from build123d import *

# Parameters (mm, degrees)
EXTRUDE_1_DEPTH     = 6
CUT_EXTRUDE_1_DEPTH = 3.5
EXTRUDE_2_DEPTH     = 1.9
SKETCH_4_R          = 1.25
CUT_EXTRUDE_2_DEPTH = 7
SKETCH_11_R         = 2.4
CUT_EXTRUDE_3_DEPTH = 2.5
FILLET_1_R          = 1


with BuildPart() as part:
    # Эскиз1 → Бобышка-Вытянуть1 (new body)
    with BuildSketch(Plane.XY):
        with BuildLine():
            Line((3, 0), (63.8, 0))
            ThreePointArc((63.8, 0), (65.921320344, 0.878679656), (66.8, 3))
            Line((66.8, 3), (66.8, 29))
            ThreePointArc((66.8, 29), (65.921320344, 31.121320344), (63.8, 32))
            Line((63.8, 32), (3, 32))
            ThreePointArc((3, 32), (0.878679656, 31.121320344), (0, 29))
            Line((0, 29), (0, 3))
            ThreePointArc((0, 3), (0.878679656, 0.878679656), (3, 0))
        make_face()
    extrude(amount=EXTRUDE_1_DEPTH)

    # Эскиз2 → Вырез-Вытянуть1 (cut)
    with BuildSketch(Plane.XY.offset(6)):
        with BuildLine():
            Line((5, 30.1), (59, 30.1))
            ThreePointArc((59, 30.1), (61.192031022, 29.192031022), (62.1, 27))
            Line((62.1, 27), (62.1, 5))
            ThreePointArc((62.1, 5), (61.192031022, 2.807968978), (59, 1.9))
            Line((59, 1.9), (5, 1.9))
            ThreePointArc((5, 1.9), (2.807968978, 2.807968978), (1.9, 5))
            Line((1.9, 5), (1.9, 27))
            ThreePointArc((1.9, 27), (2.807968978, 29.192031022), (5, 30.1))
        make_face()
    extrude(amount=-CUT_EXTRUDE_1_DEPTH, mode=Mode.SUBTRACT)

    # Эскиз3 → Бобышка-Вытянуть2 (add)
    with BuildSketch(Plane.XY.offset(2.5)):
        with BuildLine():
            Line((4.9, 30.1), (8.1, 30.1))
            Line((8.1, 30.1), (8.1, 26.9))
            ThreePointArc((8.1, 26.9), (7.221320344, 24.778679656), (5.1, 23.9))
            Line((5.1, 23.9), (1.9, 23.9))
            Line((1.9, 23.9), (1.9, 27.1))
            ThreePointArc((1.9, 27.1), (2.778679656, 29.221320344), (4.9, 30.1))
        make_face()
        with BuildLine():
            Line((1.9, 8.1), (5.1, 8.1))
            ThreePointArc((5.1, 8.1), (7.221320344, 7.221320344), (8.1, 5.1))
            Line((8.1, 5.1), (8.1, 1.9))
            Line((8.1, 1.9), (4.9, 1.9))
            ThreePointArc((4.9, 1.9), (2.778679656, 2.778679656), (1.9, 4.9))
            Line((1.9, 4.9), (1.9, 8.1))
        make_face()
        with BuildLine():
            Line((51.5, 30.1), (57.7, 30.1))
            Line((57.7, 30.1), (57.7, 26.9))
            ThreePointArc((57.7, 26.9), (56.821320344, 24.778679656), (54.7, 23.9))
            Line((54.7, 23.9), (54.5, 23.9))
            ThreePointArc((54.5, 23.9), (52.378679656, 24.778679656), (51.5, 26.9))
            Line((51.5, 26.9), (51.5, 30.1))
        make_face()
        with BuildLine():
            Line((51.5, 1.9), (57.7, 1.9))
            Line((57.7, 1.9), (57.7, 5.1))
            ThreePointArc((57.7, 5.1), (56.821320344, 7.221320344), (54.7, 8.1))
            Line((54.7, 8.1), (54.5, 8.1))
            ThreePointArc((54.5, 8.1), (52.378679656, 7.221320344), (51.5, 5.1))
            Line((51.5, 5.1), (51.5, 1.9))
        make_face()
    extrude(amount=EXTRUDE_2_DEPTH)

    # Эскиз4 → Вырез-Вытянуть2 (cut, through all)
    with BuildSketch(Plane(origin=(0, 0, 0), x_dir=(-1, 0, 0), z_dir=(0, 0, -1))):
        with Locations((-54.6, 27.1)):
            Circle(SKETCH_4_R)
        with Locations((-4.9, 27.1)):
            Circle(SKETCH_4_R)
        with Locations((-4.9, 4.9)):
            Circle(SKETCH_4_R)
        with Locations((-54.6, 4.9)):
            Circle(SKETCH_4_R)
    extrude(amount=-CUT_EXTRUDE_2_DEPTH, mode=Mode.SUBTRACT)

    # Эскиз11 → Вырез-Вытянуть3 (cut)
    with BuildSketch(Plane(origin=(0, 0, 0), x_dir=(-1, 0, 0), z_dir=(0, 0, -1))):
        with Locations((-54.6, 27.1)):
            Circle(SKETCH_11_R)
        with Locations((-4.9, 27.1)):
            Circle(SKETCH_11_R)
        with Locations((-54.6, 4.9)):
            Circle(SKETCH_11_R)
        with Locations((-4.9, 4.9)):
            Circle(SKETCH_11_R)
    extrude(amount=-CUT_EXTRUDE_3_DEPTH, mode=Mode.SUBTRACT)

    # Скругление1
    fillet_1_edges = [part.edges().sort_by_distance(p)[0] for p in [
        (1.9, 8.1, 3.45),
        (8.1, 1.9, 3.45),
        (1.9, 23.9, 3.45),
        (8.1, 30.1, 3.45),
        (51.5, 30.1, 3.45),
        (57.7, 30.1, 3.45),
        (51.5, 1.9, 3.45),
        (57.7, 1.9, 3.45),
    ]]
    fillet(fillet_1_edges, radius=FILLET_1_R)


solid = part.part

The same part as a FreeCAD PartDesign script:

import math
import FreeCAD as App
import Part
import Sketcher

V = App.Vector


def edges_at(feature, points):
    """Names of the edges that pass closest to the given points."""
    edges = feature.Shape.Edges
    near = lambda p: min(range(len(edges)), key=lambda i: edges[i].distToShape(Part.Vertex(*p))[0])
    return sorted({f"Edge{near(p) + 1}" for p in points})

doc = App.newDocument("Part")
params = doc.addObject("Spreadsheet::Sheet", "Params")
for row, (alias, value) in enumerate([
    ("sketch1_radius", "3 mm"),
    ("sketch1_height", "26 mm"),
    ("sketch1_width", "60.8 mm"),
    ("pad1_length", "6 mm"),
    ("sketch2_radius", "3.1 mm"),
    ("sketch2_width", "54 mm"),
    ("sketch2_height", "22 mm"),
    ("pocket1_length", "3.5 mm"),
    ("sketch3_radius", "3 mm"),
    ("sketch3_width", "3.2 mm"),
    ("sketch3_width2", "6.2 mm"),
    ("pad2_length", "1.9 mm"),
    ("sketch4_diameter", "2.5 mm"),
    ("sketch5_diameter", "4.8 mm"),
    ("pocket3_length", "2.5 mm"),
    ("fillet_radius", "1 mm"),
], start=1):
    params.set(f"A{row}", alias)
    params.set(f"B{row}", "=" + value)
    params.setAlias(f"B{row}", alias)

body = doc.addObject("PartDesign::Body", "Body")

sketch1 = body.newObject("Sketcher::SketchObject", "Sketch")
sketch1.AttachmentSupport = (doc.getObject("XY_Plane"), [""])
sketch1.MapMode = "FlatFace"
sketch1.addGeometry([
    Part.LineSegment(V(3, 0, 0), V(63.8, 0, 0)),
    Part.ArcOfCircle(Part.Circle(V(63.8, 3, 0), V(0, 0, 1), 3), math.radians(-90), math.radians(0)),
    Part.LineSegment(V(66.8, 3, 0), V(66.8, 29, 0)),
    Part.ArcOfCircle(Part.Circle(V(63.8, 29, 0), V(0, 0, 1), 3), math.radians(0), math.radians(90)),
    Part.LineSegment(V(63.8, 32, 0), V(3, 32, 0)),
    Part.ArcOfCircle(Part.Circle(V(3, 29, 0), V(0, 0, 1), 3), math.radians(90), math.radians(180)),
    Part.LineSegment(V(0, 29, 0), V(0, 3, 0)),
    Part.ArcOfCircle(Part.Circle(V(3, 3, 0), V(0, 0, 1), 3), math.radians(180), math.radians(270)),
], False)
sketch1.addConstraint([
    Sketcher.Constraint("Tangent", 0, 2, 1, 1),
    Sketcher.Constraint("Tangent", 1, 2, 2, 1),
    Sketcher.Constraint("Tangent", 2, 2, 3, 1),
    Sketcher.Constraint("Tangent", 3, 2, 4, 1),
    Sketcher.Constraint("Tangent", 4, 2, 5, 1),
    Sketcher.Constraint("Tangent", 5, 2, 6, 1),
    Sketcher.Constraint("Tangent", 6, 2, 7, 1),
    Sketcher.Constraint("Tangent", 7, 2, 0, 1),
    Sketcher.Constraint("Horizontal", 0),
    Sketcher.Constraint("Vertical", 2),
    Sketcher.Constraint("Horizontal", 4),
    Sketcher.Constraint("Vertical", 6),
    Sketcher.Constraint("Equal", 1, 3),
    Sketcher.Constraint("Equal", 3, 5),
    Sketcher.Constraint("Equal", 5, 7),
    Sketcher.Constraint("PointOnObject", 0, 2, -1),
    Sketcher.Constraint("PointOnObject", 5, 2, -2),
    Sketcher.Constraint("Radius", 1, 3.0),
    Sketcher.Constraint("DistanceY", 2, 1, 2, 2, 26.0),
    Sketcher.Constraint("DistanceX", 0, 1, 0, 2, 60.8),
])
sketch1.setExpression("Constraints[17]", "Params.sketch1_radius")
sketch1.setExpression("Constraints[18]", "Params.sketch1_height")
sketch1.setExpression("Constraints[19]", "Params.sketch1_width")
pad1 = body.newObject("PartDesign::Pad", "Pad")
pad1.Profile = sketch1
pad1.setExpression("Length", "Params.pad1_length")

sketch2 = body.newObject("Sketcher::SketchObject", "Sketch001")
sketch2.AttachmentSupport = (doc.getObject("XY_Plane"), [""])
sketch2.MapMode = "FlatFace"
sketch2.AttachmentOffset = App.Placement(V(0, 0, 6), App.Rotation())
sketch2.addGeometry([
    Part.LineSegment(V(59, 30.1, 0), V(5, 30.1, 0)),
    Part.ArcOfCircle(Part.Circle(V(5, 27, 0), V(0, 0, 1), 3.1), math.radians(90), math.radians(180)),
    Part.LineSegment(V(1.9, 27, 0), V(1.9, 5, 0)),
    Part.ArcOfCircle(Part.Circle(V(5, 5, 0), V(0, 0, 1), 3.1), math.radians(180), math.radians(270)),
    Part.LineSegment(V(5, 1.9, 0), V(59, 1.9, 0)),
    Part.ArcOfCircle(Part.Circle(V(59, 5, 0), V(0, 0, 1), 3.1), math.radians(-90), math.radians(0)),
    Part.LineSegment(V(62.1, 5, 0), V(62.1, 27, 0)),
    Part.ArcOfCircle(Part.Circle(V(59, 27, 0), V(0, 0, 1), 3.1), math.radians(0), math.radians(90)),
], False)
sketch2.addConstraint([
    Sketcher.Constraint("Tangent", 0, 2, 1, 1),
    Sketcher.Constraint("Tangent", 1, 2, 2, 1),
    Sketcher.Constraint("Tangent", 2, 2, 3, 1),
    Sketcher.Constraint("Tangent", 3, 2, 4, 1),
    Sketcher.Constraint("Tangent", 4, 2, 5, 1),
    Sketcher.Constraint("Tangent", 5, 2, 6, 1),
    Sketcher.Constraint("Tangent", 6, 2, 7, 1),
    Sketcher.Constraint("Tangent", 7, 2, 0, 1),
    Sketcher.Constraint("Horizontal", 0),
    Sketcher.Constraint("Vertical", 2),
    Sketcher.Constraint("Horizontal", 4),
    Sketcher.Constraint("Vertical", 6),
    Sketcher.Constraint("Equal", 1, 3),
    Sketcher.Constraint("Equal", 3, 5),
    Sketcher.Constraint("Equal", 5, 7),
    Sketcher.Constraint("Radius", 1, 3.1),
    Sketcher.Constraint("DistanceX", 0, 2, 0, 1, 54.0),
    Sketcher.Constraint("DistanceY", 2, 2, 2, 1, 22.0),
    Sketcher.Constraint("DistanceX", -1, 1, 1, 3, 5.0),
    Sketcher.Constraint("DistanceY", -1, 1, 1, 3, 27.0),
])
sketch2.setExpression("Constraints[15]", "Params.sketch2_radius")
sketch2.setExpression("Constraints[16]", "Params.sketch2_width")
sketch2.setExpression("Constraints[17]", "Params.sketch2_height")
pocket1 = body.newObject("PartDesign::Pocket", "Pocket")
pocket1.Profile = sketch2
pocket1.setExpression("Length", "Params.pocket1_length")

sketch3 = body.newObject("Sketcher::SketchObject", "Sketch002")
sketch3.AttachmentSupport = (doc.getObject("XY_Plane"), [""])
sketch3.MapMode = "FlatFace"
sketch3.AttachmentOffset = App.Placement(V(0, 0, 2.5), App.Rotation())
sketch3.addGeometry([
    Part.LineSegment(V(8.1, 30.1, 0), V(4.9, 30.1, 0)),
    Part.ArcOfCircle(Part.Circle(V(4.9, 27.1, 0), V(0, 0, 1), 3), math.radians(90), math.radians(180)),
    Part.LineSegment(V(1.9, 27.1, 0), V(1.9, 23.9, 0)),
    Part.LineSegment(V(1.9, 23.9, 0), V(5.1, 23.9, 0)),
    Part.ArcOfCircle(Part.Circle(V(5.1, 26.9, 0), V(0, 0, 1), 3), math.radians(-90), math.radians(0)),
    Part.LineSegment(V(8.1, 26.9, 0), V(8.1, 30.1, 0)),
    Part.LineSegment(V(5.1, 8.1, 0), V(1.9, 8.1, 0)),
    Part.LineSegment(V(1.9, 8.1, 0), V(1.9, 4.9, 0)),
    Part.ArcOfCircle(Part.Circle(V(4.9, 4.9, 0), V(0, 0, 1), 3), math.radians(180), math.radians(270)),
    Part.LineSegment(V(4.9, 1.9, 0), V(8.1, 1.9, 0)),
    Part.LineSegment(V(8.1, 1.9, 0), V(8.1, 5.1, 0)),
    Part.ArcOfCircle(Part.Circle(V(5.1, 5.1, 0), V(0, 0, 1), 3), math.radians(0), math.radians(90)),
    Part.LineSegment(V(57.7, 30.1, 0), V(51.5, 30.1, 0)),
    Part.LineSegment(V(51.5, 30.1, 0), V(51.5, 26.9, 0)),
    Part.ArcOfCircle(Part.Circle(V(54.5, 26.9, 0), V(0, 0, 1), 3), math.radians(180), math.radians(270)),
    Part.LineSegment(V(54.5, 23.9, 0), V(54.7, 23.9, 0)),
    Part.ArcOfCircle(Part.Circle(V(54.7, 26.9, 0), V(0, 0, 1), 3), math.radians(-90), math.radians(0)),
    Part.LineSegment(V(57.7, 26.9, 0), V(57.7, 30.1, 0)),
    Part.LineSegment(V(51.5, 1.9, 0), V(57.7, 1.9, 0)),
    Part.LineSegment(V(57.7, 1.9, 0), V(57.7, 5.1, 0)),
    Part.ArcOfCircle(Part.Circle(V(54.7, 5.1, 0), V(0, 0, 1), 3), math.radians(0), math.radians(90)),
    Part.LineSegment(V(54.7, 8.1, 0), V(54.5, 8.1, 0)),
    Part.ArcOfCircle(Part.Circle(V(54.5, 5.1, 0), V(0, 0, 1), 3), math.radians(90), math.radians(180)),
    Part.LineSegment(V(51.5, 5.1, 0), V(51.5, 1.9, 0)),
], False)
sketch3.addConstraint([
    Sketcher.Constraint("Tangent", 0, 2, 1, 1),
    Sketcher.Constraint("Tangent", 1, 2, 2, 1),
    Sketcher.Constraint("Coincident", 2, 2, 3, 1),
    Sketcher.Constraint("Tangent", 3, 2, 4, 1),
    Sketcher.Constraint("Tangent", 4, 2, 5, 1),
    Sketcher.Constraint("Coincident", 5, 2, 0, 1),
    Sketcher.Constraint("Coincident", 6, 2, 7, 1),
    Sketcher.Constraint("Tangent", 7, 2, 8, 1),
    Sketcher.Constraint("Tangent", 8, 2, 9, 1),
    Sketcher.Constraint("Coincident", 9, 2, 10, 1),
    Sketcher.Constraint("Tangent", 10, 2, 11, 1),
    Sketcher.Constraint("Tangent", 11, 2, 6, 1),
    Sketcher.Constraint("Coincident", 12, 2, 13, 1),
    Sketcher.Constraint("Tangent", 13, 2, 14, 1),
    Sketcher.Constraint("Tangent", 14, 2, 15, 1),
    Sketcher.Constraint("Tangent", 15, 2, 16, 1),
    Sketcher.Constraint("Tangent", 16, 2, 17, 1),
    Sketcher.Constraint("Coincident", 17, 2, 12, 1),
    Sketcher.Constraint("Coincident", 18, 2, 19, 1),
    Sketcher.Constraint("Tangent", 19, 2, 20, 1),
    Sketcher.Constraint("Tangent", 20, 2, 21, 1),
    Sketcher.Constraint("Tangent", 21, 2, 22, 1),
    Sketcher.Constraint("Tangent", 22, 2, 23, 1),
    Sketcher.Constraint("Coincident", 23, 2, 18, 1),
    Sketcher.Constraint("Horizontal", 0),
    Sketcher.Constraint("Vertical", 2),
    Sketcher.Constraint("Horizontal", 3),
    Sketcher.Constraint("Vertical", 5),
    Sketcher.Constraint("Horizontal", 6),
    Sketcher.Constraint("Vertical", 7),
    Sketcher.Constraint("Horizontal", 9),
    Sketcher.Constraint("Vertical", 10),
    Sketcher.Constraint("Horizontal", 12),
    Sketcher.Constraint("Vertical", 13),
    Sketcher.Constraint("Horizontal", 15),
    Sketcher.Constraint("Vertical", 17),
    Sketcher.Constraint("Horizontal", 18),
    Sketcher.Constraint("Vertical", 19),
    Sketcher.Constraint("Horizontal", 21),
    Sketcher.Constraint("Vertical", 23),
    Sketcher.Constraint("Equal", 1, 4),
    Sketcher.Constraint("Equal", 4, 8),
    Sketcher.Constraint("Equal", 8, 11),
    Sketcher.Constraint("Equal", 11, 14),
    Sketcher.Constraint("Equal", 14, 16),
    Sketcher.Constraint("Equal", 16, 20),
    Sketcher.Constraint("Equal", 20, 22),
    Sketcher.Constraint("Horizontal", 4, 3, 14, 3),
    Sketcher.Constraint("Horizontal", 11, 3, 20, 3),
    Sketcher.Constraint("Horizontal", 5, 2, 12, 2),
    Sketcher.Constraint("Horizontal", 9, 2, 18, 2),
    Sketcher.Constraint("Vertical", 1, 3, 8, 3),
    Sketcher.Constraint("Vertical", 4, 3, 11, 3),
    Sketcher.Constraint("Vertical", 16, 3, 20, 3),
    Sketcher.Constraint("Vertical", 14, 3, 22, 3),
    Sketcher.Constraint("Equal", 9, 2),
    Sketcher.Constraint("Equal", 5, 7),
    Sketcher.Constraint("Radius", 1, 3.0),
    Sketcher.Constraint("DistanceX", 0, 2, 0, 1, 3.2),
    Sketcher.Constraint("DistanceX", 12, 2, 12, 1, 6.2),
    Sketcher.Constraint("DistanceY", 8, 3, 4, 3, 22.0),
    Sketcher.Constraint("DistanceX", -1, 1, 1, 3, 4.9),
    Sketcher.Constraint("DistanceY", -1, 1, 1, 3, 27.1),
    Sketcher.Constraint("DistanceX", -1, 1, 14, 3, 54.5),
])
sketch3.setExpression("Constraints[57]", "Params.sketch3_radius")
sketch3.setExpression("Constraints[58]", "Params.sketch3_width")
sketch3.setExpression("Constraints[59]", "Params.sketch3_width2")
pad2 = body.newObject("PartDesign::Pad", "Pad001")
pad2.Profile = sketch3
pad2.setExpression("Length", "Params.pad2_length")

sketch4 = body.newObject("Sketcher::SketchObject", "Sketch003")
sketch4.AttachmentSupport = (doc.getObject("XY_Plane"), [""])
sketch4.MapMode = "FlatFace"
sketch4.addGeometry([
    Part.Circle(V(54.6, 27.1, 0), V(0, 0, 1), 1.2),
    Part.Circle(V(4.9, 27.1, 0), V(0, 0, 1), 1.2),
    Part.Circle(V(4.9, 4.9, 0), V(0, 0, 1), 1.2),
    Part.Circle(V(54.6, 4.9, 0), V(0, 0, 1), 1.2),
], False)
sketch4.addConstraint([
    Sketcher.Constraint("Equal", 0, 1),
    Sketcher.Constraint("Equal", 1, 2),
    Sketcher.Constraint("Equal", 2, 3),
    Sketcher.Constraint("Horizontal", 0, 3, 1, 3),
    Sketcher.Constraint("Horizontal", 2, 3, 3, 3),
    Sketcher.Constraint("Vertical", 1, 3, 2, 3),
    Sketcher.Constraint("Vertical", 0, 3, 3, 3),
    Sketcher.Constraint("Diameter", 0, 2.5),
    Sketcher.Constraint("DistanceX", -1, 1, 0, 3, 54.6),
    Sketcher.Constraint("DistanceY", -1, 1, 0, 3, 27.1),
    Sketcher.Constraint("DistanceX", -1, 1, 1, 3, 4.9),
    Sketcher.Constraint("DistanceY", -1, 1, 2, 3, 4.9),
])
sketch4.setExpression("Constraints[7]", "Params.sketch4_diameter")
pocket2 = body.newObject("PartDesign::Pocket", "Pocket001")
pocket2.Profile = sketch4
pocket2.Type = "ThroughAll"
pocket2.Reversed = True

sketch5 = body.newObject("Sketcher::SketchObject", "Sketch004")
sketch5.AttachmentSupport = (doc.getObject("XY_Plane"), [""])
sketch5.MapMode = "FlatFace"
sketch5.addGeometry([
    Part.Circle(V(54.6, 27.1, 0), V(0, 0, 1), 2.4),
    Part.Circle(V(4.9, 27.1, 0), V(0, 0, 1), 2.4),
    Part.Circle(V(54.6, 4.9, 0), V(0, 0, 1), 2.4),
    Part.Circle(V(4.9, 4.9, 0), V(0, 0, 1), 2.4),
], False)
sketch5.addConstraint([
    Sketcher.Constraint("Equal", 0, 1),
    Sketcher.Constraint("Equal", 1, 2),
    Sketcher.Constraint("Equal", 2, 3),
    Sketcher.Constraint("Horizontal", 0, 3, 1, 3),
    Sketcher.Constraint("Horizontal", 2, 3, 3, 3),
    Sketcher.Constraint("Vertical", 0, 3, 2, 3),
    Sketcher.Constraint("Vertical", 1, 3, 3, 3),
    Sketcher.Constraint("Diameter", 0, 4.8),
    Sketcher.Constraint("DistanceX", -1, 1, 0, 3, 54.6),
    Sketcher.Constraint("DistanceY", -1, 1, 0, 3, 27.1),
    Sketcher.Constraint("DistanceX", -1, 1, 1, 3, 4.9),
    Sketcher.Constraint("DistanceY", -1, 1, 2, 3, 4.9),
])
sketch5.setExpression("Constraints[7]", "Params.sketch5_diameter")
pocket3 = body.newObject("PartDesign::Pocket", "Pocket002")
pocket3.Profile = sketch5
pocket3.setExpression("Length", "Params.pocket3_length")
pocket3.Reversed = True
doc.recompute()

fillet = body.newObject("PartDesign::Fillet", "Fillet")
fillet.Base = (pocket3, edges_at(pocket3, [
    (1.9, 8.1, 3.45),
    (8.1, 1.9, 3.45),
    (1.9, 23.9, 3.45),
    (8.1, 30.1, 3.45),
    (51.5, 30.1, 3.45),
    (57.7, 30.1, 3.45),
    (51.5, 1.9, 3.45),
    (57.7, 1.9, 3.45),
]))
fillet.setExpression("Radius", "Params.fillet_radius")

doc.recompute()
